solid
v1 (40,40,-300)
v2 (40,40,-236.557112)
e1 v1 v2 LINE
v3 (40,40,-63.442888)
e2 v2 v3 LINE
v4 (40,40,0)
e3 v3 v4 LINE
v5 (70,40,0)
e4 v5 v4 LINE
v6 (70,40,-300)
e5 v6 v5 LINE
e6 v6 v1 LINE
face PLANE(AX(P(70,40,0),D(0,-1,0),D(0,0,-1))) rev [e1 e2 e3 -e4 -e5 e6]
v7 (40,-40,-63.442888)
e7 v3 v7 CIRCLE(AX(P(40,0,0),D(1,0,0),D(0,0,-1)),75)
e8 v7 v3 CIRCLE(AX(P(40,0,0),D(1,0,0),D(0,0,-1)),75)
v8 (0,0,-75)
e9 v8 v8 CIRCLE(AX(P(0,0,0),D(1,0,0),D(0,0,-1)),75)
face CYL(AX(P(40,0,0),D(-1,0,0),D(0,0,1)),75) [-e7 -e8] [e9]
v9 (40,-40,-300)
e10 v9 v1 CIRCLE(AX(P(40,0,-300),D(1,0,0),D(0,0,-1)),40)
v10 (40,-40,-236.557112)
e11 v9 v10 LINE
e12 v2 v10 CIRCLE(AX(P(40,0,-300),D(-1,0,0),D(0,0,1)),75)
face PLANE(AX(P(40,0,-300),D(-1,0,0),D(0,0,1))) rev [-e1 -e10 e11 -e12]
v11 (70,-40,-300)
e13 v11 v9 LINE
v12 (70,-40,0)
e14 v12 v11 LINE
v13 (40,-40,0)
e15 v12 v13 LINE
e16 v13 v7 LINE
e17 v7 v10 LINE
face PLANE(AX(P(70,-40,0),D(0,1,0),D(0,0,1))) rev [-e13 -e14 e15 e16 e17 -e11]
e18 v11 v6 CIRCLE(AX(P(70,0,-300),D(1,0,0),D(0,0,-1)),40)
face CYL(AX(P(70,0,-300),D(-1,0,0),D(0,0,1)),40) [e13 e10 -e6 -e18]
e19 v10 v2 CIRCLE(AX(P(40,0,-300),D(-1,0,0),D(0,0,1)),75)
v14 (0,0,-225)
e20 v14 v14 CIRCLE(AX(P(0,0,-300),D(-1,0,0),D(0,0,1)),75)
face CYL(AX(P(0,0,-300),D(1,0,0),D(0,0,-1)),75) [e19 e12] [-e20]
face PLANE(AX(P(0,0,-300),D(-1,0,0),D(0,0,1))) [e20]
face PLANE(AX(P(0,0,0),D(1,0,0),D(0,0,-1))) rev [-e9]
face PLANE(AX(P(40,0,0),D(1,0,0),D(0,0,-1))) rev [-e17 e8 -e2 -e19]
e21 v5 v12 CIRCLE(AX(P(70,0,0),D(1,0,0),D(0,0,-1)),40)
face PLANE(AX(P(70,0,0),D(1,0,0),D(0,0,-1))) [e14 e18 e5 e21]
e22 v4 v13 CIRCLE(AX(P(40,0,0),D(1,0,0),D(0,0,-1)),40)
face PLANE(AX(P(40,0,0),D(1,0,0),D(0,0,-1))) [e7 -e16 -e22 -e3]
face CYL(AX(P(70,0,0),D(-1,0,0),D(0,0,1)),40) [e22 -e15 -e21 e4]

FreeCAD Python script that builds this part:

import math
import FreeCAD as App
import Part
import Sketcher

doc = App.newDocument("Part")
params = doc.addObject("Spreadsheet::Sheet", "Params")
for row, (alias, value) in enumerate([
    ("sketch1_diameter", "150 mm"),
    ("pad1_length", "40 mm"),
    ("sketch2_radius", "40 mm"),
    ("sketch2_height", "300 mm"),
    ("pad2_length", "30 mm"),
    ("sketch3_diameter", "150 mm"),
    ("pad3_length", "40 mm"),
], start=1):
    params.set(f"A{row}", alias)
    params.set(f"B{row}", "=" + value)
    params.setAlias(f"B{row}", alias)

body = doc.addObject("PartDesign::Body", "Body")

# Sketch on YZ plane
sketch1 = doc.addObject("Sketcher::SketchObject", "Sketch")
body.addObject(sketch1)
sketch1.AttachmentSupport = (doc.YZ_Plane, [""])
sketch1.MapMode = "FlatFace"
sketch1.addGeometry(Part.Circle(App.Vector(0, 0, 0), App.Vector(0, 0, 1), 75), False)
sketch1.addConstraint(Sketcher.Constraint("Coincident", 0, 3, -1, 1))
sketch1.addConstraint(Sketcher.Constraint("Diameter", 0, 150.0))
sketch1.setExpression("Constraints[1]", "Params.sketch1_diameter")
pad1 = doc.addObject("PartDesign::Pad", "Pad")
body.addObject(pad1)
pad1.Profile = sketch1
pad1.setExpression("Length", "Params.pad1_length")

# Sketch on YZ plane
sketch2 = doc.addObject("Sketcher::SketchObject", "Sketch001")
body.addObject(sketch2)
sketch2.AttachmentSupport = (doc.YZ_Plane, [""])
sketch2.MapMode = "FlatFace"
sketch2.AttachmentOffset = App.Placement(App.Vector(0, 0, 40), App.Rotation())
sketch2.addGeometry(Part.LineSegment(App.Vector(40, -300, 0), App.Vector(40, 0, 0)), False)
sketch2.addGeometry(Part.ArcOfCircle(Part.Circle(App.Vector(0, 0, 0), App.Vector(0, 0, 1), 40), math.radians(0), math.radians(180)), False)
sketch2.addGeometry(Part.LineSegment(App.Vector(-40, 0, 0), App.Vector(-40, -300, 0)), False)
sketch2.addGeometry(Part.ArcOfCircle(Part.Circle(App.Vector(0, -300, 0), App.Vector(0, 0, 1), 40), math.radians(180), math.radians(360)), False)
sketch2.addConstraint(Sketcher.Constraint("Tangent", 0, 2, 1, 1))
sketch2.addConstraint(Sketcher.Constraint("Tangent", 1, 2, 2, 1))
sketch2.addConstraint(Sketcher.Constraint("Tangent", 2, 2, 3, 1))
sketch2.addConstraint(Sketcher.Constraint("Tangent", 3, 2, 0, 1))
sketch2.addConstraint(Sketcher.Constraint("Vertical", 0))
sketch2.addConstraint(Sketcher.Constraint("Vertical", 2))
sketch2.addConstraint(Sketcher.Constraint("Coincident", 1, 3, -1, 1))
sketch2.addConstraint(Sketcher.Constraint("Radius", 1, 40.0))
sketch2.addConstraint(Sketcher.Constraint("DistanceY", 0, 1, 0, 2, 300.0))
sketch2.setExpression("Constraints[7]", "Params.sketch2_radius")
sketch2.setExpression("Constraints[8]", "Params.sketch2_height")
pad2 = doc.addObject("PartDesign::Pad", "Pad001")
body.addObject(pad2)
pad2.Profile = sketch2
pad2.setExpression("Length", "Params.pad2_length")

# Sketch on YZ plane
sketch3 = doc.addObject("Sketcher::SketchObject", "Sketch002")
body.addObject(sketch3)
sketch3.AttachmentSupport = (doc.YZ_Plane, [""])
sketch3.MapMode = "FlatFace"
sketch3.AttachmentOffset = App.Placement(App.Vector(0, 0, 40), App.Rotation())
sketch3.addGeometry(Part.Circle(App.Vector(0, -300, 0), App.Vector(0, 0, 1), 75), False)
sketch3.addConstraint(Sketcher.Constraint("PointOnObject", 0, 3, -2))
sketch3.addConstraint(Sketcher.Constraint("Diameter", 0, 150.0))
sketch3.addConstraint(Sketcher.Constraint("DistanceY", 0, 3, -1, 1, 300.0))
sketch3.setExpression("Constraints[1]", "Params.sketch3_diameter")
pad3 = doc.addObject("PartDesign::Pad", "Pad002")
body.addObject(pad3)
pad3.Profile = sketch3
pad3.setExpression("Length", "Params.pad3_length")
pad3.Reversed = True

doc.recompute()
